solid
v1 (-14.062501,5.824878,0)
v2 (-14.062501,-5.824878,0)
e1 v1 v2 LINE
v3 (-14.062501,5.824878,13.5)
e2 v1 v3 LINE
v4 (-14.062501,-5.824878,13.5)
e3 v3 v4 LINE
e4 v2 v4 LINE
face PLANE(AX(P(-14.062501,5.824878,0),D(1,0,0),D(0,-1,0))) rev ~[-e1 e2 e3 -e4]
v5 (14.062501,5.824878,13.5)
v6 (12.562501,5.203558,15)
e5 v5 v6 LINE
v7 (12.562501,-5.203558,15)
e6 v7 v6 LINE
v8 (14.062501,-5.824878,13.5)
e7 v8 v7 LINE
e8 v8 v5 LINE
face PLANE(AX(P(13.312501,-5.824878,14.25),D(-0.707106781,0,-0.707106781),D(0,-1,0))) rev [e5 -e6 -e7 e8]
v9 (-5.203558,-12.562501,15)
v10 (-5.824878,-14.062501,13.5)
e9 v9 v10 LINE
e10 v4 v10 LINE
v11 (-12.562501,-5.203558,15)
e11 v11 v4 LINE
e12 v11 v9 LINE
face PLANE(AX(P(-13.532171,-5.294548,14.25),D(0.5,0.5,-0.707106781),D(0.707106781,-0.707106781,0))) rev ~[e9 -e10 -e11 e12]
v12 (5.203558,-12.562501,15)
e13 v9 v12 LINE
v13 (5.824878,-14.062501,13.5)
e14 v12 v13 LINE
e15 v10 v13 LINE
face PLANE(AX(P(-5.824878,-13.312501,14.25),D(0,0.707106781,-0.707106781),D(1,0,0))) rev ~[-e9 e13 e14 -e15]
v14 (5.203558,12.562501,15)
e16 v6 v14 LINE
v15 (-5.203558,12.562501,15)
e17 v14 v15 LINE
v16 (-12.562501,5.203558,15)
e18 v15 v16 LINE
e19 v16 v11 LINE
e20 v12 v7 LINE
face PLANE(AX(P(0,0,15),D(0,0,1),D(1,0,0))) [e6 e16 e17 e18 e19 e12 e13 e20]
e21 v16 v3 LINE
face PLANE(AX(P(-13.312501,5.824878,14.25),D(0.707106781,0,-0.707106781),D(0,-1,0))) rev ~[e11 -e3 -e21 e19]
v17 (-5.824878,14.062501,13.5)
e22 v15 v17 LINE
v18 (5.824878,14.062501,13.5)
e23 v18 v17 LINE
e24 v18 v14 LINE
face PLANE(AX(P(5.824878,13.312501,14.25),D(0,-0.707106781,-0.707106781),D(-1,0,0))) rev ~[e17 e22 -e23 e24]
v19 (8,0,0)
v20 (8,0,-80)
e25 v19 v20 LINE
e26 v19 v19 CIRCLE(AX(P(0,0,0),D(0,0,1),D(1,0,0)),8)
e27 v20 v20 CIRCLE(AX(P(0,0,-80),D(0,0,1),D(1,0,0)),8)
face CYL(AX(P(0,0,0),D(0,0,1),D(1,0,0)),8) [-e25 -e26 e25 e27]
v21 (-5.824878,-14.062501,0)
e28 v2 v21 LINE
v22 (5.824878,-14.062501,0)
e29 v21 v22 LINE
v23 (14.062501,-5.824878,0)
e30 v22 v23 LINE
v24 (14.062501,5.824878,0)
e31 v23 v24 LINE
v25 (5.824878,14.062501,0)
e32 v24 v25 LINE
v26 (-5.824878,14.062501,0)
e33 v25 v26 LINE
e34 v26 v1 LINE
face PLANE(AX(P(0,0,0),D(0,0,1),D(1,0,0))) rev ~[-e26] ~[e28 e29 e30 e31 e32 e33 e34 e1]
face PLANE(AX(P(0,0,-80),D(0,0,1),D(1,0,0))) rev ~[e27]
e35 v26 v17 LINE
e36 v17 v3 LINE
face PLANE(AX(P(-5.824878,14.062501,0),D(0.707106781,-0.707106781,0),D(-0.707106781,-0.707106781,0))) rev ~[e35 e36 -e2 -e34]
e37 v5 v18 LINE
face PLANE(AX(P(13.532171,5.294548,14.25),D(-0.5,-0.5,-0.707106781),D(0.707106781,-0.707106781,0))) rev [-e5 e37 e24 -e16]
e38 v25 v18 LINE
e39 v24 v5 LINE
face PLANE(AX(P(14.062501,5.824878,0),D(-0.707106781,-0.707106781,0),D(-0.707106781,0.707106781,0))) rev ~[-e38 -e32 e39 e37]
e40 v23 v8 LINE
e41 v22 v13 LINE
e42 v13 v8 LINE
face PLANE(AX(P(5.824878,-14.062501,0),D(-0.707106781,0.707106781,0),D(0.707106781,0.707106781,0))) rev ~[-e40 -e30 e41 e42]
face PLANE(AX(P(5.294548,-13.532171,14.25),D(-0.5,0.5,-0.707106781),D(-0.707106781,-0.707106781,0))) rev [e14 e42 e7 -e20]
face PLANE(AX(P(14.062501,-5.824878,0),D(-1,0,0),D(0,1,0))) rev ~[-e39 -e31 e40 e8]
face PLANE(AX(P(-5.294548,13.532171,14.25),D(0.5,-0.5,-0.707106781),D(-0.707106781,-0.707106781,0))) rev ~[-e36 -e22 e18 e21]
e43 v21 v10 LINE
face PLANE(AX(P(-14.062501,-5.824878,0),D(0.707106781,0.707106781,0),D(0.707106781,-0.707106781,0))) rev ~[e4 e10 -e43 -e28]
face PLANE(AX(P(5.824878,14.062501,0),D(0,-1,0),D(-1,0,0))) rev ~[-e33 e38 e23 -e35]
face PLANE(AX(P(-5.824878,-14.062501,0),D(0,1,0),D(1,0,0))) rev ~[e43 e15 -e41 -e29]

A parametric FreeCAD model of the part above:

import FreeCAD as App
import Part
import Sketcher
Q = App.Units.Quantity


def edges_at(feature, points):
    """Names of the edges that pass closest to the given points."""
    edges = feature.Shape.Edges
    near = lambda p: min(range(len(edges)), key=lambda i: edges[i].distToShape(Part.Vertex(*p))[0])
    return sorted({f"Edge{near(p) + 1}" for p in points})


def add_polygon(sketch, points):
    """Adds a closed chain of lines whose ends are joined by coincident constraints."""
    first, n = sketch.GeometryCount, len(points)
    for a, b in zip(points, points[1:] + points[:1]):
        sketch.addGeometry(Part.LineSegment(App.Vector(*a, 0), App.Vector(*b, 0)), False)
    for i in range(n):
        sketch.addConstraint(Sketcher.Constraint("Coincident", first + i, 2, first + (i + 1) % n, 1))

doc = App.newDocument("Part")
body = doc.addObject("PartDesign::Body", "Body")

sketch1 = body.newObject("Sketcher::SketchObject", "Sketch")
sketch1.AttachmentSupport = (doc.getObject("XY_Plane"), [""])
sketch1.MapMode = "FlatFace"
add_polygon(sketch1, [(14, -6), (14, 6), (6, 14), (-6, 14), (-14, 6), (-14, -6), (-6, -14), (6, -14)])
sketch1.addConstraint(Sketcher.Constraint("Vertical", 0))
sketch1.addConstraint(Sketcher.Constraint("Horizontal", 2))
sketch1.addConstraint(Sketcher.Constraint("Vertical", 4))
sketch1.addConstraint(Sketcher.Constraint("Horizontal", 6))
sketch1.addConstraint(Sketcher.Constraint("Symmetric", 0, 2, 4, 2, -1, 1))
sketch1.addConstraint(Sketcher.Constraint("Symmetric", 1, 2, 5, 2, -1, 1))
sketch1.addConstraint(Sketcher.Constraint("Perpendicular", 1, 3))
sketch1.addConstraint(Sketcher.Constraint("Perpendicular", 5, 7))
sketch1.addConstraint(Sketcher.Constraint("Horizontal", 0, 2, 3, 2))
sketch1.addConstraint(Sketcher.Constraint("Horizontal", 4, 2, 7, 2))
sketch1.addConstraint(Sketcher.Constraint("Vertical", 2, 2, 5, 2))
sketch1.addConstraint(Sketcher.Constraint("Equal", 6, 0))
sketch1.addConstraint(Sketcher.Constraint("DistanceX", 3, 2, 0, 2, Q("28.125002 mm")))
sketch1.addConstraint(Sketcher.Constraint("Distance", 1, Q("11.649758 mm")))
pad1 = body.newObject("PartDesign::Pad", "Pad")
pad1.Profile = sketch1
pad1.Length = 15

sketch2 = body.newObject("Sketcher::SketchObject", "Sketch001")
sketch2.AttachmentSupport = (doc.getObject("XY_Plane"), [""])
sketch2.MapMode = "FlatFace"
sketch2.addGeometry(Part.Circle(App.Vector(0, 0, 0), App.Vector(0, 0, 1), 8), False)
sketch2.addConstraint(Sketcher.Constraint("Coincident", 0, 3, -1, 1))
sketch2.addConstraint(Sketcher.Constraint("Diameter", 0, Q("16 mm")))
pad2 = body.newObject("PartDesign::Pad", "Pad001")
pad2.Profile = sketch2
pad2.Length = 80
pad2.Reversed = True
doc.recompute()

chamfer = body.newObject("PartDesign::Chamfer", "Chamfer")
chamfer.Base = (pad2, edges_at(pad2, [
    (0, -14.063, 15),
    (9.944, -9.944, 15),
    (14.063, 0, 15),
    (9.944, 9.944, 15),
    (0, 14.063, 15),
    (-9.944, 9.944, 15),
    (-14.063, 0, 15),
    (-9.944, -9.944, 15),
]))
chamfer.Size = 1.5

doc.recompute()
